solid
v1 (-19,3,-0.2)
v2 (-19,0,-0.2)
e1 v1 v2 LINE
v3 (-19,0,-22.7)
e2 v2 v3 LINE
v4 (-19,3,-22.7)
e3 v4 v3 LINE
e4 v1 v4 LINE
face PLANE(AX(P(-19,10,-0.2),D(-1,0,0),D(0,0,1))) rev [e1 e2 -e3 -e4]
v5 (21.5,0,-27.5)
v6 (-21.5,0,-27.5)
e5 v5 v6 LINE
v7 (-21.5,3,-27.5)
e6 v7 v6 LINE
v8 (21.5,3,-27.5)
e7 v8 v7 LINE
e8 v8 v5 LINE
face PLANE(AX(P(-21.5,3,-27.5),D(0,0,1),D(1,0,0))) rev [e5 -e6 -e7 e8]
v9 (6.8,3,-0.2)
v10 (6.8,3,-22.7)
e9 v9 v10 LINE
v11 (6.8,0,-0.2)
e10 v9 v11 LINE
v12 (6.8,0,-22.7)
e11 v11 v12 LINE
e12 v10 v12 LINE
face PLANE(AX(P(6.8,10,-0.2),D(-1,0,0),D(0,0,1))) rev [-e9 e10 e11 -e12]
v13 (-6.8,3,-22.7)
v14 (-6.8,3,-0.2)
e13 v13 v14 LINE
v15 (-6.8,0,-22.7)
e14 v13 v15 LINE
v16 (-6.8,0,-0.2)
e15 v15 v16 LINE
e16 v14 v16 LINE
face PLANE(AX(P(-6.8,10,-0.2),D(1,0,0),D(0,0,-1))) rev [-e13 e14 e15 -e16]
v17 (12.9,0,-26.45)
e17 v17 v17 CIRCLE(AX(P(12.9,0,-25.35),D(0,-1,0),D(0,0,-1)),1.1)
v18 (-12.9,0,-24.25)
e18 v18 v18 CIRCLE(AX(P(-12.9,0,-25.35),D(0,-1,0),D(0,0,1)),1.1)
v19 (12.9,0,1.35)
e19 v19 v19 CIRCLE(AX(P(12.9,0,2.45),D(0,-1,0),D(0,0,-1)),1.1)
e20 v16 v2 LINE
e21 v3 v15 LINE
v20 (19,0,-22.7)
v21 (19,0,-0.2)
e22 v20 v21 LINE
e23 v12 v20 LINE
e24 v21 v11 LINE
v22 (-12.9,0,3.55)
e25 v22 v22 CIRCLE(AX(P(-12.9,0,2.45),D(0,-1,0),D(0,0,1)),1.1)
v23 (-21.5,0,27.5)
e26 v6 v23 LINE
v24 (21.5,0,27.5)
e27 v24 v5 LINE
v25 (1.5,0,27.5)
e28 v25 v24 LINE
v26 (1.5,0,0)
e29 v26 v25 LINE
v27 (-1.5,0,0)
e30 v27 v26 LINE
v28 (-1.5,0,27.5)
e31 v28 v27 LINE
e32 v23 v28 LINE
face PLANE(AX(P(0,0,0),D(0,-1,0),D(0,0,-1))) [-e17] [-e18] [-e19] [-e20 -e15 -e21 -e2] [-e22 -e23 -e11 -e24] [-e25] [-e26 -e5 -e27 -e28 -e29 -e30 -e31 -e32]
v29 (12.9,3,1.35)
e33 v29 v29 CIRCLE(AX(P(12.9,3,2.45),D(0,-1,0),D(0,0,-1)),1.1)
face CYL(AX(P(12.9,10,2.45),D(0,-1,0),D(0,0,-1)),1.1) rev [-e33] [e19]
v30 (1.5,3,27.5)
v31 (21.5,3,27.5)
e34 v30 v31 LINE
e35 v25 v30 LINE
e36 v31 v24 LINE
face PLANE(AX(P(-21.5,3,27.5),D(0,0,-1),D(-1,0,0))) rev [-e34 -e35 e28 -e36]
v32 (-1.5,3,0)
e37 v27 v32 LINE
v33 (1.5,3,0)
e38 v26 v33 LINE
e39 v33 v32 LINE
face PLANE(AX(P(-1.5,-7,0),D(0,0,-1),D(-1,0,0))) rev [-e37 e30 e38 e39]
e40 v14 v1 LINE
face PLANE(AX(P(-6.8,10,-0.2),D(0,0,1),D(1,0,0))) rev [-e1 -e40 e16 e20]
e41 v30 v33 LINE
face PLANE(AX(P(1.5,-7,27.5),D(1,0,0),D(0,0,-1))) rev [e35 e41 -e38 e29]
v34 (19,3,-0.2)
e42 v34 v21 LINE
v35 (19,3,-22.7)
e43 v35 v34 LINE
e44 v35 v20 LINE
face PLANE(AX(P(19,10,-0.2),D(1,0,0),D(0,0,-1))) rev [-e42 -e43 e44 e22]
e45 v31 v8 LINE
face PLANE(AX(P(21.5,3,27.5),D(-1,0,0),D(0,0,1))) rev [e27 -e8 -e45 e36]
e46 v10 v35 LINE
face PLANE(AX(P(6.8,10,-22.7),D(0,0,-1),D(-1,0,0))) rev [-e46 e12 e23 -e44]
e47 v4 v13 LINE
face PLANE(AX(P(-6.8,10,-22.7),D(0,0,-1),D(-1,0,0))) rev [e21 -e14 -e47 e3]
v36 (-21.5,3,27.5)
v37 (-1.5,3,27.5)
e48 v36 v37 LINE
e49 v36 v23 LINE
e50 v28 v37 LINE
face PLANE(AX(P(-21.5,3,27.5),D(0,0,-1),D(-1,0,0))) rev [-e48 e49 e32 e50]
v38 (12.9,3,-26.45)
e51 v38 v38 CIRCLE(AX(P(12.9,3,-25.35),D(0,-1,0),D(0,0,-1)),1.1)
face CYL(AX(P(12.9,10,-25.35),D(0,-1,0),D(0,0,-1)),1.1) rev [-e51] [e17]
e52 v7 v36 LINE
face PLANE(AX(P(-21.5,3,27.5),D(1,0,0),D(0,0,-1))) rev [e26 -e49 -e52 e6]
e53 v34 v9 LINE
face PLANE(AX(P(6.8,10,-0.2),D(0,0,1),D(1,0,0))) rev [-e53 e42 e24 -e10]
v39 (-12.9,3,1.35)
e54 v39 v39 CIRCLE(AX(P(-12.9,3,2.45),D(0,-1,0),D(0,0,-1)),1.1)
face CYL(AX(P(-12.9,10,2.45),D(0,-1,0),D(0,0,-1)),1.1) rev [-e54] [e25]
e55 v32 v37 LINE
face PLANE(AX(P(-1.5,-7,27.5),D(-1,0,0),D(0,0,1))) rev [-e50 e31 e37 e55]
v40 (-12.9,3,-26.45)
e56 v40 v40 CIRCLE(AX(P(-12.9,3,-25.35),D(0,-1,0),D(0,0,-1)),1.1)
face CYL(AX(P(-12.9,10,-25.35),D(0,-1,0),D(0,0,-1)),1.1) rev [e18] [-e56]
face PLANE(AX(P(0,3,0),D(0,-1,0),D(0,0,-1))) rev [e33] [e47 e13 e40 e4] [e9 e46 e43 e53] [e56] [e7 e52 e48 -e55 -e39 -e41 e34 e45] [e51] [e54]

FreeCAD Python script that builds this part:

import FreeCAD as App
import Part
import Sketcher

V = App.Vector
Q = App.Units.Quantity

doc = App.newDocument("Part")
params = doc.addObject("Spreadsheet::Sheet", "Params")
for row, (alias, value) in enumerate([
    ("sketch1_width", "43 mm"),
    ("sketch1_height", "55 mm"),
    ("pad1_length", "3 mm"),
    ("sketch2_width", "3 mm"),
    ("sketch2_height", "27.5 mm"),
    ("pocket1_length", "10 mm"),
    ("sketch3_diameter", "2.2 mm"),
    ("sketch3_width", "12.2 mm"),
    ("sketch3_height", "22.5 mm"),
    ("pocket2_length", "10 mm"),
], start=1):
    params.set(f"A{row}", alias)
    params.set(f"B{row}", "=" + value)
    params.setAlias(f"B{row}", alias)

body = doc.addObject("PartDesign::Body", "Body")

# Sketch on XZ plane
sketch1 = body.newObject("Sketcher::SketchObject", "Sketch")
sketch1.AttachmentSupport = (doc.getObject("XZ_Plane"), [""])
sketch1.MapMode = "FlatFace"
sketch1.addGeometry([
    Part.LineSegment(V(-22, -28, 0), V(-22, 28, 0)),
    Part.LineSegment(V(-22, 28, 0), V(22, 28, 0)),
    Part.LineSegment(V(22, 28, 0), V(22, -28, 0)),
    Part.LineSegment(V(22, -28, 0), V(-22, -28, 0)),
], False)
sketch1.addConstraint([
    Sketcher.Constraint("Coincident", 0, 2, 1, 1),
    Sketcher.Constraint("Coincident", 1, 2, 2, 1),
    Sketcher.Constraint("Coincident", 2, 2, 3, 1),
    Sketcher.Constraint("Coincident", 3, 2, 0, 1),
    Sketcher.Constraint("Vertical", 0),
    Sketcher.Constraint("Horizontal", 1),
    Sketcher.Constraint("Vertical", 2),
    Sketcher.Constraint("Horizontal", 3),
    Sketcher.Constraint("Symmetric", 0, 2, 2, 2, -1, 1),
    Sketcher.Constraint("DistanceX", 1, 1, 1, 2, Q("43 mm")),
    Sketcher.Constraint("DistanceY", 0, 1, 0, 2, Q("55 mm")),
])
sketch1.setExpression("Constraints[9]", "Params.sketch1_width")
sketch1.setExpression("Constraints[10]", "Params.sketch1_height")
pad1 = body.newObject("PartDesign::Pad", "Pad")
pad1.Profile = sketch1
pad1.setExpression("Length", "Params.pad1_length")
pad1.Reversed = True

# Sketch on XZ plane
sketch2 = body.newObject("Sketcher::SketchObject", "Sketch001")
sketch2.AttachmentSupport = (doc.getObject("XZ_Plane"), [""])
sketch2.MapMode = "FlatFace"
sketch2.AttachmentOffset = App.Placement(V(0, 0, -3), App.Rotation())
sketch2.addGeometry([
    Part.LineSegment(V(-1.5, 0, 0), V(-1.5, 27.5, 0)),
    Part.LineSegment(V(-1.5, 27.5, 0), V(1.5, 27.5, 0)),
    Part.LineSegment(V(1.5, 27.5, 0), V(1.5, 0, 0)),
    Part.LineSegment(V(1.5, 0, 0), V(-1.5, 0, 0)),
], False)
sketch2.addConstraint([
    Sketcher.Constraint("Coincident", 0, 2, 1, 1),
    Sketcher.Constraint("Coincident", 1, 2, 2, 1),
    Sketcher.Constraint("Coincident", 2, 2, 3, 1),
    Sketcher.Constraint("Coincident", 3, 2, 0, 1),
    Sketcher.Constraint("Vertical", 0),
    Sketcher.Constraint("Horizontal", 1),
    Sketcher.Constraint("Vertical", 2),
    Sketcher.Constraint("Horizontal", 3),
    Sketcher.Constraint("Symmetric", 2, 2, 3, 2, -1, 1),
    Sketcher.Constraint("DistanceX", 1, 1, 1, 2, Q("3 mm")),
    Sketcher.Constraint("DistanceY", 0, 1, 0, 2, Q("27.5 mm")),
])
sketch2.setExpression("Constraints[9]", "Params.sketch2_width")
sketch2.setExpression("Constraints[10]", "Params.sketch2_height")
pocket1 = body.newObject("PartDesign::Pocket", "Pocket")
pocket1.Profile = sketch2
pocket1.setExpression("Length", "Params.pocket1_length")
pocket1.Reversed = True

# Sketch on XZ plane
sketch3 = body.newObject("Sketcher::SketchObject", "Sketch002")
sketch3.AttachmentSupport = (doc.getObject("XZ_Plane"), [""])
sketch3.MapMode = "FlatFace"
sketch3.addGeometry([
    Part.Circle(V(12.9, -25.4, 0), V(0, 0, 1), 1.1),  # 0
    Part.Circle(V(12.9, 2.5, 0), V(0, 0, 1), 1.1),  # 1
    Part.Circle(V(-12.9, -25.4, 0), V(0, 0, 1), 1.1),  # 2
    Part.Circle(V(-12.9, 2.5, 0), V(0, 0, 1), 1.1),  # 3
    Part.LineSegment(V(6.8, -0.2, 0), V(6.8, -22.7, 0)),  # 4
    Part.LineSegment(V(6.8, -22.7, 0), V(19, -22.7, 0)),  # 5
    Part.LineSegment(V(19, -22.7, 0), V(19, -0.2, 0)),  # 6
    Part.LineSegment(V(19, -0.2, 0), V(6.8, -0.2, 0)),  # 7
    Part.LineSegment(V(-19, -0.2, 0), V(-19, -22.7, 0)),  # 8
    Part.LineSegment(V(-19, -22.7, 0), V(-6.8, -22.7, 0)),  # 9
    Part.LineSegment(V(-6.8, -22.7, 0), V(-6.8, -0.2, 0)),  # 10
    Part.LineSegment(V(-6.8, -0.2, 0), V(-19, -0.2, 0)),  # 11
], False)
sketch3.addConstraint([
    Sketcher.Constraint("Coincident", 4, 2, 5, 1),
    Sketcher.Constraint("Coincident", 5, 2, 6, 1),
    Sketcher.Constraint("Coincident", 6, 2, 7, 1),
    Sketcher.Constraint("Coincident", 7, 2, 4, 1),
    Sketcher.Constraint("Coincident", 8, 2, 9, 1),
    Sketcher.Constraint("Coincident", 9, 2, 10, 1),
    Sketcher.Constraint("Coincident", 10, 2, 11, 1),
    Sketcher.Constraint("Coincident", 11, 2, 8, 1),
    Sketcher.Constraint("Vertical", 4),
    Sketcher.Constraint("Horizontal", 5),
    Sketcher.Constraint("Vertical", 6),
    Sketcher.Constraint("Horizontal", 7),
    Sketcher.Constraint("Vertical", 8),
    Sketcher.Constraint("Horizontal", 9),
    Sketcher.Constraint("Vertical", 10),
    Sketcher.Constraint("Horizontal", 11),
    Sketcher.Constraint("Equal", 0, 1),
    Sketcher.Constraint("Equal", 1, 2),
    Sketcher.Constraint("Equal", 2, 3),
    Sketcher.Constraint("Symmetric", 0, 3, 2, 3, -2),
    Sketcher.Constraint("Symmetric", 1, 3, 3, 3, -2),
    Sketcher.Constraint("Symmetric", 5, 2, 8, 2, -2),
    Sketcher.Constraint("Symmetric", 7, 2, 10, 2, -2),
    Sketcher.Constraint("Vertical", 0, 3, 1, 3),
    Sketcher.Constraint("Diameter", 0, Q("2.2 mm")),
    Sketcher.Constraint("DistanceX", 5, 1, 5, 2, Q("12.2 mm")),
    Sketcher.Constraint("DistanceY", 4, 2, 4, 1, Q("22.5 mm")),
    Sketcher.Constraint("DistanceX", -1, 1, 5, 2, Q("19 mm")),
    Sketcher.Constraint("DistanceX", -1, 1, 0, 3, Q("12.9 mm")),
    Sketcher.Constraint("DistanceY", 4, 2, -1, 1, Q("22.7 mm")),
    Sketcher.Constraint("DistanceY", 0, 3, 1, 3, Q("27.8 mm")),
    Sketcher.Constraint("DistanceY", 0, 3, -1, 1, Q("25.35 mm")),
])
sketch3.setExpression("Constraints[24]", "Params.sketch3_diameter")
sketch3.setExpression("Constraints[25]", "Params.sketch3_width")
sketch3.setExpression("Constraints[26]", "Params.sketch3_height")
pocket2 = body.newObject("PartDesign::Pocket", "Pocket001")
pocket2.Profile = sketch3
pocket2.setExpression("Length", "Params.pocket2_length")

doc.recompute()
